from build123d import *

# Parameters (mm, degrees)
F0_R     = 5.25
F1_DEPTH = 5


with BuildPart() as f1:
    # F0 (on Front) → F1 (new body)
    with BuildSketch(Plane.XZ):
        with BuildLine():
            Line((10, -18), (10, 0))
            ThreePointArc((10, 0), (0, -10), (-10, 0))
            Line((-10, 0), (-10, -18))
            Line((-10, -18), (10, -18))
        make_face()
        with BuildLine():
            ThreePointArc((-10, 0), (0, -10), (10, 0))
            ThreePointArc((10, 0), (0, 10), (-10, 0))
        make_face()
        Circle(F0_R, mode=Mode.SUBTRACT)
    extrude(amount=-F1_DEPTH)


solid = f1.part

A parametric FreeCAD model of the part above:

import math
import FreeCAD as App
import Part
import Sketcher
from FreeCAD import Vector

doc = App.newDocument("Part")
body = doc.addObject("PartDesign::Body", "Body")

sketch1 = body.newObject("Sketcher::SketchObject", "Sketch")
sketch1.AttachmentSupport = (doc.getObject("XZ_Plane"), [""])
sketch1.MapMode = "FlatFace"
sketch1.addGeometry([
    Part.LineSegment(Vector(10, -18, 0), Vector(10, 0, 0)),
    Part.ArcOfCircle(Part.Circle(Vector(0, 0, 0), Vector(0, 0, 1), 10), math.radians(0), math.radians(180)),
    Part.LineSegment(Vector(-10, 0, 0), Vector(-10, -18, 0)),
    Part.LineSegment(Vector(-10, -18, 0), Vector(10, -18, 0)),
    Part.Circle(Vector(0, 0, 0), Vector(0, 0, 1), 5),
], False)
sketch1.addConstraint([
    Sketcher.Constraint("Tangent", 0, 2, 1, 1),
    Sketcher.Constraint("Tangent", 1, 2, 2, 1),
    Sketcher.Constraint("Coincident", 2, 2, 3, 1),
    Sketcher.Constraint("Coincident", 3, 2, 0, 1),
    Sketcher.Constraint("Vertical", 0),
    Sketcher.Constraint("Vertical", 2),
    Sketcher.Constraint("Horizontal", 3),
    Sketcher.Constraint("Coincident", 1, 3, -1, 1),
    Sketcher.Constraint("Coincident", 4, 3, -1, 1),
    Sketcher.Constraint("Radius", 1, 10.0),
    Sketcher.Constraint("Diameter", 4, 10.5),
    Sketcher.Constraint("DistanceY", 0, 1, 0, 2, 18.0),
])
pad1 = body.newObject("PartDesign::Pad", "Pad")
pad1.Profile = sketch1
pad1.Length = 5
pad1.Reversed = True

doc.recompute()
